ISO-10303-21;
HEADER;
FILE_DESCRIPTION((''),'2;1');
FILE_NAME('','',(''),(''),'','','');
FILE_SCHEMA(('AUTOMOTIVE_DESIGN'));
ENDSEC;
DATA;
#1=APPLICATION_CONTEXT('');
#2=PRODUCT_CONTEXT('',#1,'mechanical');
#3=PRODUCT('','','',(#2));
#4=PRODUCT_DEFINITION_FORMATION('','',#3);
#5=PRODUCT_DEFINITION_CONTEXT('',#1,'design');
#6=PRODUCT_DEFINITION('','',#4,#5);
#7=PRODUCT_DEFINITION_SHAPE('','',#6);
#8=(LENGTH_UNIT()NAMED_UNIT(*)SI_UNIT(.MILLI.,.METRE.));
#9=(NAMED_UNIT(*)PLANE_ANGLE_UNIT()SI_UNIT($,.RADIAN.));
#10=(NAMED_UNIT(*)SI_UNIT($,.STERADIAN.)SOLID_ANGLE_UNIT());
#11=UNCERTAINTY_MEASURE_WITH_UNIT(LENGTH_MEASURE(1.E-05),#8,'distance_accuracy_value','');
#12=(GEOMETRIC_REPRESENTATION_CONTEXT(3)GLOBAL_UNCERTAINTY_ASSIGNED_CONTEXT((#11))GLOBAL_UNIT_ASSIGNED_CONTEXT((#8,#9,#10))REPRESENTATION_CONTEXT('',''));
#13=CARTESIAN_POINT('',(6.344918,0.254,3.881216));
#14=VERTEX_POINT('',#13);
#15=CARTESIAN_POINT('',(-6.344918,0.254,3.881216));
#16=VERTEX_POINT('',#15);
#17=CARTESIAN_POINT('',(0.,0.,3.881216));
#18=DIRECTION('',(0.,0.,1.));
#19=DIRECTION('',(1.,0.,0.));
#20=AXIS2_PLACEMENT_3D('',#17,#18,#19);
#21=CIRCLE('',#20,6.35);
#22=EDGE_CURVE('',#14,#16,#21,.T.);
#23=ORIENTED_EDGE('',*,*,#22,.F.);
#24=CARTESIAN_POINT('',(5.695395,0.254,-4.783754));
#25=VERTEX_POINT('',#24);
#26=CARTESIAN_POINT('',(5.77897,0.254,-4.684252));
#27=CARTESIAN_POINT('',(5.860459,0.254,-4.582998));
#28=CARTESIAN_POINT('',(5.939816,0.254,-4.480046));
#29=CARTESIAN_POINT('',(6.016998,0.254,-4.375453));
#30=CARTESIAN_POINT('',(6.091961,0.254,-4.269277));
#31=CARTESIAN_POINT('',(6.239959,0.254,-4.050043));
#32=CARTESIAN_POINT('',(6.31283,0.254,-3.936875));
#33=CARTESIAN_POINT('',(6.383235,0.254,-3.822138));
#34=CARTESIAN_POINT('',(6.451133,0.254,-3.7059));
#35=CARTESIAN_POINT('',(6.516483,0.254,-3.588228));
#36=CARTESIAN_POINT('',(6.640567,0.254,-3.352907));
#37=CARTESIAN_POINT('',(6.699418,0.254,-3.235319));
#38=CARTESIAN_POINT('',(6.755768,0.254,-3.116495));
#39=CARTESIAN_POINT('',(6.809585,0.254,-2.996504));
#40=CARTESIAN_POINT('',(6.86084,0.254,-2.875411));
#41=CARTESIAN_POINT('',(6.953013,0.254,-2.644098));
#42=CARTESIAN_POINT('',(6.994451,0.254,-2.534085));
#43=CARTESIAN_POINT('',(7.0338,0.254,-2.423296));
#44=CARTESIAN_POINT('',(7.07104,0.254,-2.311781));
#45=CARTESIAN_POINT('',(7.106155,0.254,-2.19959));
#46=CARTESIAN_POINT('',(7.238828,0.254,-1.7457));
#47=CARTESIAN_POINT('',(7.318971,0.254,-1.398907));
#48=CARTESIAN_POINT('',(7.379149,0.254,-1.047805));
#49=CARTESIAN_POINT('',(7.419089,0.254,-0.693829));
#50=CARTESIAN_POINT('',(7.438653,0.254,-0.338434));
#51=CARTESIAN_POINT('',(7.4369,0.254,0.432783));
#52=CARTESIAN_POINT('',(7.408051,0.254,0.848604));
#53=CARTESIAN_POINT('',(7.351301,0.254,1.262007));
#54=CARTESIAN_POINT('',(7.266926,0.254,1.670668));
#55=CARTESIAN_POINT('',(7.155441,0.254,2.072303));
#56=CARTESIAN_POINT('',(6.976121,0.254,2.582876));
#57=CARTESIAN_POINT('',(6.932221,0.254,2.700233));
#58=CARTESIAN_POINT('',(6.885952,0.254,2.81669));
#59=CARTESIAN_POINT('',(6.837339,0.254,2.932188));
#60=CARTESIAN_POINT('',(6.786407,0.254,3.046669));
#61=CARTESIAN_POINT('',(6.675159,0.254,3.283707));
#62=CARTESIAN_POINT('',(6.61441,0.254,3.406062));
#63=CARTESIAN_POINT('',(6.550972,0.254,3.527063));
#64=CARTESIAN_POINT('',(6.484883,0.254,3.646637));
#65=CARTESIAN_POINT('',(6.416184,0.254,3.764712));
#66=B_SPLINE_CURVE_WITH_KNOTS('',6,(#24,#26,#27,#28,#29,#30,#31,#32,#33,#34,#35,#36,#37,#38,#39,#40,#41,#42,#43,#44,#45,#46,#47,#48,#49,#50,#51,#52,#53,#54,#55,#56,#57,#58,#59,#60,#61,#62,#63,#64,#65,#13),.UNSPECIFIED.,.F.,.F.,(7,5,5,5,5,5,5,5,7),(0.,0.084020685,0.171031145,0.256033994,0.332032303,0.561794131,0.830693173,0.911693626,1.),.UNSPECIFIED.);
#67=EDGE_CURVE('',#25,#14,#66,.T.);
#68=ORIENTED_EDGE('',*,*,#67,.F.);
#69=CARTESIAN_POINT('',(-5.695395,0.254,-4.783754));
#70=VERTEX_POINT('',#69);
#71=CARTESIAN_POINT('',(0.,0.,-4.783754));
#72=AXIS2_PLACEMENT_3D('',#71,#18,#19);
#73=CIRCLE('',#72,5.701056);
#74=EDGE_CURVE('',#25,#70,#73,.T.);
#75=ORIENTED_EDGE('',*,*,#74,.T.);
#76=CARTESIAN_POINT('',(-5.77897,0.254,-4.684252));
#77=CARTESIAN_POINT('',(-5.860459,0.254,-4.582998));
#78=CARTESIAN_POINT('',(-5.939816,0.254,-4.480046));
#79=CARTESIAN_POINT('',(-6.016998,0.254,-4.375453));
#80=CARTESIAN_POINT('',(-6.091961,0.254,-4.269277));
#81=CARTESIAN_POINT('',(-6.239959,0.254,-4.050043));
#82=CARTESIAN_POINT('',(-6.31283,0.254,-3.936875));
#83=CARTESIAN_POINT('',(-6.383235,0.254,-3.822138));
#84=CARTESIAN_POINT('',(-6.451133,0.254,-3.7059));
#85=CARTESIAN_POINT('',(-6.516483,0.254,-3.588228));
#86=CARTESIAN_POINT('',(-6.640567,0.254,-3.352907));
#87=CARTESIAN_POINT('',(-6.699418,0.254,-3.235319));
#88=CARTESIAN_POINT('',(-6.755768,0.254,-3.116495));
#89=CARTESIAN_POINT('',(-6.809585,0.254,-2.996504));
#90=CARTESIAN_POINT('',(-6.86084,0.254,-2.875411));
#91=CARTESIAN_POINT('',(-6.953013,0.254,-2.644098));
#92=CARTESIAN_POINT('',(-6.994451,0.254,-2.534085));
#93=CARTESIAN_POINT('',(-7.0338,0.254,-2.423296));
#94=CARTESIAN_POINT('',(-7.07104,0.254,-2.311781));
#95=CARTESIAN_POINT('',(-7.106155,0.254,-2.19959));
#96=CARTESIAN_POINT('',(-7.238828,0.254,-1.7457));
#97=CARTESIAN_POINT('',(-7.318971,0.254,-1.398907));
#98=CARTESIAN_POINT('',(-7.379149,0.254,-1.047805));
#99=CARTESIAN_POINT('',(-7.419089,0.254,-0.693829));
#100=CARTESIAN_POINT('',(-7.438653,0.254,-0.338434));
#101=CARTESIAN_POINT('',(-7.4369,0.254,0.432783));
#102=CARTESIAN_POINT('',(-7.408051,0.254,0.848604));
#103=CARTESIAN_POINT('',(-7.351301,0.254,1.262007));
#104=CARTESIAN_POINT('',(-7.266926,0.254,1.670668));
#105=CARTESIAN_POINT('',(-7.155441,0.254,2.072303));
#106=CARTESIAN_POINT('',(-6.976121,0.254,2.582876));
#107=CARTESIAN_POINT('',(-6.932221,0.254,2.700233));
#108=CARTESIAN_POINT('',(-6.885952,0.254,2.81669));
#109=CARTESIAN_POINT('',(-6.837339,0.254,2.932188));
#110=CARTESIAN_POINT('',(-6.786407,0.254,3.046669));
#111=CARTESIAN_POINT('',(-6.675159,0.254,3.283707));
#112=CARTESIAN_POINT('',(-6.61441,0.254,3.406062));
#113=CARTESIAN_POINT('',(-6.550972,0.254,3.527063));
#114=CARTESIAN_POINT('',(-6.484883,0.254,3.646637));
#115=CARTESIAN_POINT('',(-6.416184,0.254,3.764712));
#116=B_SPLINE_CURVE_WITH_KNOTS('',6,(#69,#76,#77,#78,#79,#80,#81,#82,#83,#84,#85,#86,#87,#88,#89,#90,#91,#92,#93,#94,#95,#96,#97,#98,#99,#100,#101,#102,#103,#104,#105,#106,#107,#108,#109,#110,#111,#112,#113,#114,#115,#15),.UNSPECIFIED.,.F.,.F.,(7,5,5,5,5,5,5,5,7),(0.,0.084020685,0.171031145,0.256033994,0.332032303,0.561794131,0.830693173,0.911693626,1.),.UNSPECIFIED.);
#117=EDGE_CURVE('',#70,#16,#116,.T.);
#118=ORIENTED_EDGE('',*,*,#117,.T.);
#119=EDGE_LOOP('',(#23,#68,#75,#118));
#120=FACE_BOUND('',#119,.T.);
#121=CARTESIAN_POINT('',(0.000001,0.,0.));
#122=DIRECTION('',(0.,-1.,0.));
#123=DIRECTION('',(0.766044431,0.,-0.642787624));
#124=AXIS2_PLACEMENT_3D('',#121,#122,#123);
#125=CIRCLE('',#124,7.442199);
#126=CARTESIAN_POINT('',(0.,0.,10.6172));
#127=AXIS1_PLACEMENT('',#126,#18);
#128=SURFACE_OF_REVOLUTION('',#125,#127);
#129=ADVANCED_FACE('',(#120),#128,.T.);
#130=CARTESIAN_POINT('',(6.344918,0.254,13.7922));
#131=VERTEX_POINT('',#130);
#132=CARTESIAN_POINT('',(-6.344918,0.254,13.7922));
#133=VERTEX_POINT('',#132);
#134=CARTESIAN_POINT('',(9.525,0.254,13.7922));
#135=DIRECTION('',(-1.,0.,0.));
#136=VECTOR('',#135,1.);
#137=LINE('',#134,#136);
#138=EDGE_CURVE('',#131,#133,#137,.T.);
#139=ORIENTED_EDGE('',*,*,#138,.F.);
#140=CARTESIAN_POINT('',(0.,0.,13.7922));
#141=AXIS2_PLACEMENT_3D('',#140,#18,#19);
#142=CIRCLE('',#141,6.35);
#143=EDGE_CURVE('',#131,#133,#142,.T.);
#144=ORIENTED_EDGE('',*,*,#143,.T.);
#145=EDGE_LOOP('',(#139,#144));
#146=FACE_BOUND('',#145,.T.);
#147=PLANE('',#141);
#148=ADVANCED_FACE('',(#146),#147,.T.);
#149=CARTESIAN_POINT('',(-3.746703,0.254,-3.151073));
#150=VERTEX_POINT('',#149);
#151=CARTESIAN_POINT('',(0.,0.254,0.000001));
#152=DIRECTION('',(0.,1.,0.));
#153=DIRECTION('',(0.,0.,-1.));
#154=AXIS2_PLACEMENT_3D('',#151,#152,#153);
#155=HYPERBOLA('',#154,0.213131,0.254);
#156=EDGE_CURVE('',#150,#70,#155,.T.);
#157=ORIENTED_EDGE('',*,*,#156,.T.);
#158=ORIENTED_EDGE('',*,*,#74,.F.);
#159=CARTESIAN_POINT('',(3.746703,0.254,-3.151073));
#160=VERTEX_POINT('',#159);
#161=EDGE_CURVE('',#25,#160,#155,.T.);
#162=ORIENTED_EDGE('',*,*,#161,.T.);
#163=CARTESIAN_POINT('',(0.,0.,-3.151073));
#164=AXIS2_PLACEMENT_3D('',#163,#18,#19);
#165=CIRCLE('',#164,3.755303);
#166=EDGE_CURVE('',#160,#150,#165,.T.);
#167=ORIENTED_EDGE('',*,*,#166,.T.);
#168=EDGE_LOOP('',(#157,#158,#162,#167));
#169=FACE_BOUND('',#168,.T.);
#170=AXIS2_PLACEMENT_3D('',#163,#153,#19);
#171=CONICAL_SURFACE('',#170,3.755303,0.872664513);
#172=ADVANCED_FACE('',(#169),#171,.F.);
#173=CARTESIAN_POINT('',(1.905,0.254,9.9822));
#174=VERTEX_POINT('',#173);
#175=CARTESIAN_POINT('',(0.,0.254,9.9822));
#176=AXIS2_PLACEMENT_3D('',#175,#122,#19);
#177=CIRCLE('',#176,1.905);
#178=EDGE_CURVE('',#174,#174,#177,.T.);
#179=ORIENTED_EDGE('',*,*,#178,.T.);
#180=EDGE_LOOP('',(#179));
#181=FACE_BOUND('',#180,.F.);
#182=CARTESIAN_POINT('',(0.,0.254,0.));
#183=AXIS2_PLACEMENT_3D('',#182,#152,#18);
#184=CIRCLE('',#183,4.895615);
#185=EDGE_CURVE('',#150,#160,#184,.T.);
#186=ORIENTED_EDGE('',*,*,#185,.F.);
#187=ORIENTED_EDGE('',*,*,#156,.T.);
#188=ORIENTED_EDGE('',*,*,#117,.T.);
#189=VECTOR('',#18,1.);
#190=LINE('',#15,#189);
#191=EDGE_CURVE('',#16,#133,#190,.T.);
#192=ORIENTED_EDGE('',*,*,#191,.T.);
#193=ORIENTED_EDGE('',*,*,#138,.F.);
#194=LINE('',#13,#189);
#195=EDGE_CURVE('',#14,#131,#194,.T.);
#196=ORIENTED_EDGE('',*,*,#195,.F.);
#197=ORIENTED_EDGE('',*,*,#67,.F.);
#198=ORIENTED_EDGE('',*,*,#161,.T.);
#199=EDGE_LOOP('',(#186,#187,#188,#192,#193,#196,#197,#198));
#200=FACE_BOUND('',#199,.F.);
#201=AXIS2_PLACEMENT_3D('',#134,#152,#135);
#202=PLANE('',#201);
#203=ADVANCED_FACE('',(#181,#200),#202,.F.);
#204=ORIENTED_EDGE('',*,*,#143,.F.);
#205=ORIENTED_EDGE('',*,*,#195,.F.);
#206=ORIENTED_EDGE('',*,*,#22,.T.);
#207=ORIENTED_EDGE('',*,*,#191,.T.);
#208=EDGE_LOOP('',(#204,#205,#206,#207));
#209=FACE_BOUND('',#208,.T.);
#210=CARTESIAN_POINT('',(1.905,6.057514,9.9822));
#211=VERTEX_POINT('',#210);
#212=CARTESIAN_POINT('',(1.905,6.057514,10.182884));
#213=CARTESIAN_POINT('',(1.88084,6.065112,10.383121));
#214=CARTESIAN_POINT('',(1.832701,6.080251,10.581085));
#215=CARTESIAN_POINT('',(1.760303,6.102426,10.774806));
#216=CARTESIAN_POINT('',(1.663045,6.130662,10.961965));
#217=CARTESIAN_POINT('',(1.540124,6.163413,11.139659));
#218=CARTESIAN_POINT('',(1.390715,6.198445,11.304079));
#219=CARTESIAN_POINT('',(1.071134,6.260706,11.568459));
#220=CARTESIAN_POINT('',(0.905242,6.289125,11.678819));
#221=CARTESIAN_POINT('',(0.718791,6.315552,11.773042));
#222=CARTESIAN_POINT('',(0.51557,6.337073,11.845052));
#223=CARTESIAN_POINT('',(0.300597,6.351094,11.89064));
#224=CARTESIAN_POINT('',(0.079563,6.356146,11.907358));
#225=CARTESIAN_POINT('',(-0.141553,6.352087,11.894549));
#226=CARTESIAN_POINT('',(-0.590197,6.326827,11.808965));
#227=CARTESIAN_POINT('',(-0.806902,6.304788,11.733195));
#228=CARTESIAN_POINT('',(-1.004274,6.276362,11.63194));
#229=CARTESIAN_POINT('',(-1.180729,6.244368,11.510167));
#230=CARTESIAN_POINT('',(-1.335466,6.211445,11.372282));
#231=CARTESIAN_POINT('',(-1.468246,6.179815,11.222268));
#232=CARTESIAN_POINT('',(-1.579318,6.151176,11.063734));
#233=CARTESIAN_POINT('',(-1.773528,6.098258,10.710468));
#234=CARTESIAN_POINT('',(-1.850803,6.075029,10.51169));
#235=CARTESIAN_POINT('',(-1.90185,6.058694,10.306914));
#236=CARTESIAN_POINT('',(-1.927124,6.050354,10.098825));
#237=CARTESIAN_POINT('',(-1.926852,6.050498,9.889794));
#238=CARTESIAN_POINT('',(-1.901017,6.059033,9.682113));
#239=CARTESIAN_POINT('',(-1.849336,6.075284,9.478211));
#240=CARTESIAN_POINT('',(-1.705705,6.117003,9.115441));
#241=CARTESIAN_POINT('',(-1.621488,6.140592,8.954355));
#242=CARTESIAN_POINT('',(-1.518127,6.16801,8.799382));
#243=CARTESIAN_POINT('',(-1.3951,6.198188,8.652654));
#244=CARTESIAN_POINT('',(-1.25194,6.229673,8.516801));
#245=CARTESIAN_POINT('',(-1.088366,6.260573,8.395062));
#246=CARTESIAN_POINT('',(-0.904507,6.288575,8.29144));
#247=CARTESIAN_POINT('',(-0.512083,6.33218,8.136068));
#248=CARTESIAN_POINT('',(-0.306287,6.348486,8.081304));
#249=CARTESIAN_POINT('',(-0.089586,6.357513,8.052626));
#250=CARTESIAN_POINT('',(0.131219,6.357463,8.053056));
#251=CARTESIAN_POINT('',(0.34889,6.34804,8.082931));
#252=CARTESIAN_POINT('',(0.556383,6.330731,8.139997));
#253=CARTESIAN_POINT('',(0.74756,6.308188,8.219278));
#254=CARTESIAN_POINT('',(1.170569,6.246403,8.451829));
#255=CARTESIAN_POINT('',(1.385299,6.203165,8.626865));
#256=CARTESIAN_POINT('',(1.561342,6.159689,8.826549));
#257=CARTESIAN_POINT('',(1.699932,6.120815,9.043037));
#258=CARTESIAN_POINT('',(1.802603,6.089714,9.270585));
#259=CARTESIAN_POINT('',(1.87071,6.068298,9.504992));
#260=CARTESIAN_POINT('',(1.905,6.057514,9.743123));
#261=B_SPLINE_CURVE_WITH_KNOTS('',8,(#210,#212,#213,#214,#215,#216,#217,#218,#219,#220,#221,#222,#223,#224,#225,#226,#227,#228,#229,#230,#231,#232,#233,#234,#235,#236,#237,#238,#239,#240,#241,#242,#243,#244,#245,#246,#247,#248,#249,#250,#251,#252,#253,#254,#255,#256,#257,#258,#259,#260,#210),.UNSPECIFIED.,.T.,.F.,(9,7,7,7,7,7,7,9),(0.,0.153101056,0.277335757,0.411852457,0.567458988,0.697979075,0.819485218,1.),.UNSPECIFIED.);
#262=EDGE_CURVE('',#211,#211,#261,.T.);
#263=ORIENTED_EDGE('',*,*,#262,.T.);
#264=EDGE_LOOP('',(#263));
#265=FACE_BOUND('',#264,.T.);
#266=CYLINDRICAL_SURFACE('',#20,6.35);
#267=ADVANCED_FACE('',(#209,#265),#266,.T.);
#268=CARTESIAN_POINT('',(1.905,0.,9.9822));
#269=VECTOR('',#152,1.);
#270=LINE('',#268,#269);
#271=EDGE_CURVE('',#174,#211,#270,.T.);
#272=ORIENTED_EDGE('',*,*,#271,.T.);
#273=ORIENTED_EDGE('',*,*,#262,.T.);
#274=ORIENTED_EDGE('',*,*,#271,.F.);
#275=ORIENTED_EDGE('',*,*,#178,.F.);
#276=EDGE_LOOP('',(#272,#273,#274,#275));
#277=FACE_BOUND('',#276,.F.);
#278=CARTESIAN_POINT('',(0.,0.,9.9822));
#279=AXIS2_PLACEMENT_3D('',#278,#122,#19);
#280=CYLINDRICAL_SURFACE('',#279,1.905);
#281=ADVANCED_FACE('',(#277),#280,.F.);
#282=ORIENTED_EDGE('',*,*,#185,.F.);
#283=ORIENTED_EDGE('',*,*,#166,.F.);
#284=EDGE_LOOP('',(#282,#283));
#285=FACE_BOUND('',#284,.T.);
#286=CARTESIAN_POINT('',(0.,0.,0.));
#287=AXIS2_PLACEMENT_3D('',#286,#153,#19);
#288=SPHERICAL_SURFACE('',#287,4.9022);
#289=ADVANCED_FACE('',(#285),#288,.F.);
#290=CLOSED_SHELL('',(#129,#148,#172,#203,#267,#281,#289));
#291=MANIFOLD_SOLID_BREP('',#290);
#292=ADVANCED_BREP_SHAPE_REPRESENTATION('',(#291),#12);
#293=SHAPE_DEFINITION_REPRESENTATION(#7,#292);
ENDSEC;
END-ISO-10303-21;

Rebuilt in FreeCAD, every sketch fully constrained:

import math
import FreeCAD as App
import Part
import Sketcher
from FreeCAD import Vector
Q = App.Units.Quantity


def add_polygon(sketch, points):
    """Adds a closed chain of lines whose ends are joined by coincident constraints."""
    first, n = sketch.GeometryCount, len(points)
    for a, b in zip(points, points[1:] + points[:1]):
        sketch.addGeometry(Part.LineSegment(App.Vector(*a, 0), App.Vector(*b, 0)), False)
    for i in range(n):
        sketch.addConstraint(Sketcher.Constraint("Coincident", first + i, 2, first + (i + 1) % n, 1))

doc = App.newDocument("Part")
body = doc.addObject("PartDesign::Body", "Body")

sketch1 = doc.addObject("Sketcher::SketchObject", "Sketch")
body.addObject(sketch1)
sketch1.AttachmentSupport = (doc.XZ_Plane, [""])
sketch1.MapMode = "FlatFace"
sketch1.addGeometry([
    Part.ArcOfCircle(Part.Circle(Vector(0, 0, 0), Vector(0, 0, 1), 4.9), math.radians(-40), math.radians(90)),
    Part.LineSegment(Vector(3.8, -3.2, 0), Vector(5.7, -4.8, 0)),
    Part.ArcOfCircle(Part.Circle(Vector(0, 0, 0), Vector(0, 0, 1), 7.4), math.radians(-40), math.radians(31)),
    Part.LineSegment(Vector(6.3, 3.9, 0), Vector(6.3, 13.8, 0)),
    Part.LineSegment(Vector(6.3, 13.8, 0), Vector(0, 13.8, 0)),
    Part.LineSegment(Vector(0, 13.8, 0), Vector(0, 4.9, 0)),
], False)
sketch1.addConstraint([
    Sketcher.Constraint("Coincident", 0, 1, 1, 1),
    Sketcher.Constraint("Coincident", 1, 2, 2, 1),
    Sketcher.Constraint("Coincident", 2, 2, 3, 1),
    Sketcher.Constraint("Coincident", 3, 2, 4, 1),
    Sketcher.Constraint("Coincident", 4, 2, 5, 1),
    Sketcher.Constraint("Coincident", 5, 2, 0, 2),
    Sketcher.Constraint("Vertical", 3),
    Sketcher.Constraint("Horizontal", 4),
    Sketcher.Constraint("Vertical", 5),
    Sketcher.Constraint("Coincident", 0, 3, -1, 1),
    Sketcher.Constraint("Coincident", 2, 3, -1, 1),
    Sketcher.Constraint("PointOnObject", 4, 2, -2),
    Sketcher.Constraint("Angle", 1, Q("-40.000006 deg")),
    Sketcher.Constraint("Radius", 0, Q("0.193 in")),
    Sketcher.Constraint("Radius", 2, Q("0.293 in")),
    Sketcher.Constraint("DistanceX", 4, 2, 4, 1, Q("0.25 in")),
    Sketcher.Constraint("DistanceY", 5, 2, 5, 1, Q("0.35 in")),
    Sketcher.Constraint("DistanceY", 0, 1, 2, 2, Q("7.032289 mm")),
])
revolution = doc.addObject("PartDesign::Revolution", "Revolution")
body.addObject(revolution)
revolution.Profile = sketch1
revolution.ReferenceAxis = (sketch1, ["V_Axis"])
revolution.Angle = 180

sketch2 = doc.addObject("Sketcher::SketchObject", "Sketch001")
body.addObject(sketch2)
sketch2.AttachmentSupport = (doc.XZ_Plane, [""])
sketch2.MapMode = "FlatFace"
sketch2.addGeometry(Part.Circle(Vector(0, 10, 0), Vector(0, 0, 1), 1.9), False)
sketch2.addConstraint([
    Sketcher.Constraint("PointOnObject", 0, 3, -2),
    Sketcher.Constraint("Diameter", 0, Q("0.15 in")),
    Sketcher.Constraint("DistanceY", -1, 1, 0, 3, Q("0.393 in")),
])
pocket1 = doc.addObject("PartDesign::Pocket", "Pocket")
body.addObject(pocket1)
pocket1.Profile = sketch2
pocket1.Type = "ThroughAll"

sketch3 = doc.addObject("Sketcher::SketchObject", "Sketch002")
body.addObject(sketch3)
sketch3.AttachmentSupport = (doc.XY_Plane, [""])
sketch3.MapMode = "FlatFace"
sketch3.AttachmentOffset = App.Placement(Vector(0, 0, 0.543 * 25.4), App.Rotation())
add_polygon(sketch3, [(-9.53, 0.25), (-9.53, 0), (9.53, 0), (9.53, 0.25)])
sketch3.addConstraint([
    Sketcher.Constraint("Vertical", 0),
    Sketcher.Constraint("Horizontal", 1),
    Sketcher.Constraint("Vertical", 2),
    Sketcher.Constraint("Horizontal", 3),
    Sketcher.Constraint("Symmetric", 0, 2, 1, 2, -1, 1),
    Sketcher.Constraint("DistanceX", 1, 1, 1, 2, Q("0.75 in")),
    Sketcher.Constraint("DistanceY", 0, 2, 0, 1, Q("0.01 in")),
])
pocket2 = doc.addObject("PartDesign::Pocket", "Pocket001")
body.addObject(pocket2)
pocket2.Profile = sketch3
pocket2.Type = "ThroughAll"

doc.recompute()
